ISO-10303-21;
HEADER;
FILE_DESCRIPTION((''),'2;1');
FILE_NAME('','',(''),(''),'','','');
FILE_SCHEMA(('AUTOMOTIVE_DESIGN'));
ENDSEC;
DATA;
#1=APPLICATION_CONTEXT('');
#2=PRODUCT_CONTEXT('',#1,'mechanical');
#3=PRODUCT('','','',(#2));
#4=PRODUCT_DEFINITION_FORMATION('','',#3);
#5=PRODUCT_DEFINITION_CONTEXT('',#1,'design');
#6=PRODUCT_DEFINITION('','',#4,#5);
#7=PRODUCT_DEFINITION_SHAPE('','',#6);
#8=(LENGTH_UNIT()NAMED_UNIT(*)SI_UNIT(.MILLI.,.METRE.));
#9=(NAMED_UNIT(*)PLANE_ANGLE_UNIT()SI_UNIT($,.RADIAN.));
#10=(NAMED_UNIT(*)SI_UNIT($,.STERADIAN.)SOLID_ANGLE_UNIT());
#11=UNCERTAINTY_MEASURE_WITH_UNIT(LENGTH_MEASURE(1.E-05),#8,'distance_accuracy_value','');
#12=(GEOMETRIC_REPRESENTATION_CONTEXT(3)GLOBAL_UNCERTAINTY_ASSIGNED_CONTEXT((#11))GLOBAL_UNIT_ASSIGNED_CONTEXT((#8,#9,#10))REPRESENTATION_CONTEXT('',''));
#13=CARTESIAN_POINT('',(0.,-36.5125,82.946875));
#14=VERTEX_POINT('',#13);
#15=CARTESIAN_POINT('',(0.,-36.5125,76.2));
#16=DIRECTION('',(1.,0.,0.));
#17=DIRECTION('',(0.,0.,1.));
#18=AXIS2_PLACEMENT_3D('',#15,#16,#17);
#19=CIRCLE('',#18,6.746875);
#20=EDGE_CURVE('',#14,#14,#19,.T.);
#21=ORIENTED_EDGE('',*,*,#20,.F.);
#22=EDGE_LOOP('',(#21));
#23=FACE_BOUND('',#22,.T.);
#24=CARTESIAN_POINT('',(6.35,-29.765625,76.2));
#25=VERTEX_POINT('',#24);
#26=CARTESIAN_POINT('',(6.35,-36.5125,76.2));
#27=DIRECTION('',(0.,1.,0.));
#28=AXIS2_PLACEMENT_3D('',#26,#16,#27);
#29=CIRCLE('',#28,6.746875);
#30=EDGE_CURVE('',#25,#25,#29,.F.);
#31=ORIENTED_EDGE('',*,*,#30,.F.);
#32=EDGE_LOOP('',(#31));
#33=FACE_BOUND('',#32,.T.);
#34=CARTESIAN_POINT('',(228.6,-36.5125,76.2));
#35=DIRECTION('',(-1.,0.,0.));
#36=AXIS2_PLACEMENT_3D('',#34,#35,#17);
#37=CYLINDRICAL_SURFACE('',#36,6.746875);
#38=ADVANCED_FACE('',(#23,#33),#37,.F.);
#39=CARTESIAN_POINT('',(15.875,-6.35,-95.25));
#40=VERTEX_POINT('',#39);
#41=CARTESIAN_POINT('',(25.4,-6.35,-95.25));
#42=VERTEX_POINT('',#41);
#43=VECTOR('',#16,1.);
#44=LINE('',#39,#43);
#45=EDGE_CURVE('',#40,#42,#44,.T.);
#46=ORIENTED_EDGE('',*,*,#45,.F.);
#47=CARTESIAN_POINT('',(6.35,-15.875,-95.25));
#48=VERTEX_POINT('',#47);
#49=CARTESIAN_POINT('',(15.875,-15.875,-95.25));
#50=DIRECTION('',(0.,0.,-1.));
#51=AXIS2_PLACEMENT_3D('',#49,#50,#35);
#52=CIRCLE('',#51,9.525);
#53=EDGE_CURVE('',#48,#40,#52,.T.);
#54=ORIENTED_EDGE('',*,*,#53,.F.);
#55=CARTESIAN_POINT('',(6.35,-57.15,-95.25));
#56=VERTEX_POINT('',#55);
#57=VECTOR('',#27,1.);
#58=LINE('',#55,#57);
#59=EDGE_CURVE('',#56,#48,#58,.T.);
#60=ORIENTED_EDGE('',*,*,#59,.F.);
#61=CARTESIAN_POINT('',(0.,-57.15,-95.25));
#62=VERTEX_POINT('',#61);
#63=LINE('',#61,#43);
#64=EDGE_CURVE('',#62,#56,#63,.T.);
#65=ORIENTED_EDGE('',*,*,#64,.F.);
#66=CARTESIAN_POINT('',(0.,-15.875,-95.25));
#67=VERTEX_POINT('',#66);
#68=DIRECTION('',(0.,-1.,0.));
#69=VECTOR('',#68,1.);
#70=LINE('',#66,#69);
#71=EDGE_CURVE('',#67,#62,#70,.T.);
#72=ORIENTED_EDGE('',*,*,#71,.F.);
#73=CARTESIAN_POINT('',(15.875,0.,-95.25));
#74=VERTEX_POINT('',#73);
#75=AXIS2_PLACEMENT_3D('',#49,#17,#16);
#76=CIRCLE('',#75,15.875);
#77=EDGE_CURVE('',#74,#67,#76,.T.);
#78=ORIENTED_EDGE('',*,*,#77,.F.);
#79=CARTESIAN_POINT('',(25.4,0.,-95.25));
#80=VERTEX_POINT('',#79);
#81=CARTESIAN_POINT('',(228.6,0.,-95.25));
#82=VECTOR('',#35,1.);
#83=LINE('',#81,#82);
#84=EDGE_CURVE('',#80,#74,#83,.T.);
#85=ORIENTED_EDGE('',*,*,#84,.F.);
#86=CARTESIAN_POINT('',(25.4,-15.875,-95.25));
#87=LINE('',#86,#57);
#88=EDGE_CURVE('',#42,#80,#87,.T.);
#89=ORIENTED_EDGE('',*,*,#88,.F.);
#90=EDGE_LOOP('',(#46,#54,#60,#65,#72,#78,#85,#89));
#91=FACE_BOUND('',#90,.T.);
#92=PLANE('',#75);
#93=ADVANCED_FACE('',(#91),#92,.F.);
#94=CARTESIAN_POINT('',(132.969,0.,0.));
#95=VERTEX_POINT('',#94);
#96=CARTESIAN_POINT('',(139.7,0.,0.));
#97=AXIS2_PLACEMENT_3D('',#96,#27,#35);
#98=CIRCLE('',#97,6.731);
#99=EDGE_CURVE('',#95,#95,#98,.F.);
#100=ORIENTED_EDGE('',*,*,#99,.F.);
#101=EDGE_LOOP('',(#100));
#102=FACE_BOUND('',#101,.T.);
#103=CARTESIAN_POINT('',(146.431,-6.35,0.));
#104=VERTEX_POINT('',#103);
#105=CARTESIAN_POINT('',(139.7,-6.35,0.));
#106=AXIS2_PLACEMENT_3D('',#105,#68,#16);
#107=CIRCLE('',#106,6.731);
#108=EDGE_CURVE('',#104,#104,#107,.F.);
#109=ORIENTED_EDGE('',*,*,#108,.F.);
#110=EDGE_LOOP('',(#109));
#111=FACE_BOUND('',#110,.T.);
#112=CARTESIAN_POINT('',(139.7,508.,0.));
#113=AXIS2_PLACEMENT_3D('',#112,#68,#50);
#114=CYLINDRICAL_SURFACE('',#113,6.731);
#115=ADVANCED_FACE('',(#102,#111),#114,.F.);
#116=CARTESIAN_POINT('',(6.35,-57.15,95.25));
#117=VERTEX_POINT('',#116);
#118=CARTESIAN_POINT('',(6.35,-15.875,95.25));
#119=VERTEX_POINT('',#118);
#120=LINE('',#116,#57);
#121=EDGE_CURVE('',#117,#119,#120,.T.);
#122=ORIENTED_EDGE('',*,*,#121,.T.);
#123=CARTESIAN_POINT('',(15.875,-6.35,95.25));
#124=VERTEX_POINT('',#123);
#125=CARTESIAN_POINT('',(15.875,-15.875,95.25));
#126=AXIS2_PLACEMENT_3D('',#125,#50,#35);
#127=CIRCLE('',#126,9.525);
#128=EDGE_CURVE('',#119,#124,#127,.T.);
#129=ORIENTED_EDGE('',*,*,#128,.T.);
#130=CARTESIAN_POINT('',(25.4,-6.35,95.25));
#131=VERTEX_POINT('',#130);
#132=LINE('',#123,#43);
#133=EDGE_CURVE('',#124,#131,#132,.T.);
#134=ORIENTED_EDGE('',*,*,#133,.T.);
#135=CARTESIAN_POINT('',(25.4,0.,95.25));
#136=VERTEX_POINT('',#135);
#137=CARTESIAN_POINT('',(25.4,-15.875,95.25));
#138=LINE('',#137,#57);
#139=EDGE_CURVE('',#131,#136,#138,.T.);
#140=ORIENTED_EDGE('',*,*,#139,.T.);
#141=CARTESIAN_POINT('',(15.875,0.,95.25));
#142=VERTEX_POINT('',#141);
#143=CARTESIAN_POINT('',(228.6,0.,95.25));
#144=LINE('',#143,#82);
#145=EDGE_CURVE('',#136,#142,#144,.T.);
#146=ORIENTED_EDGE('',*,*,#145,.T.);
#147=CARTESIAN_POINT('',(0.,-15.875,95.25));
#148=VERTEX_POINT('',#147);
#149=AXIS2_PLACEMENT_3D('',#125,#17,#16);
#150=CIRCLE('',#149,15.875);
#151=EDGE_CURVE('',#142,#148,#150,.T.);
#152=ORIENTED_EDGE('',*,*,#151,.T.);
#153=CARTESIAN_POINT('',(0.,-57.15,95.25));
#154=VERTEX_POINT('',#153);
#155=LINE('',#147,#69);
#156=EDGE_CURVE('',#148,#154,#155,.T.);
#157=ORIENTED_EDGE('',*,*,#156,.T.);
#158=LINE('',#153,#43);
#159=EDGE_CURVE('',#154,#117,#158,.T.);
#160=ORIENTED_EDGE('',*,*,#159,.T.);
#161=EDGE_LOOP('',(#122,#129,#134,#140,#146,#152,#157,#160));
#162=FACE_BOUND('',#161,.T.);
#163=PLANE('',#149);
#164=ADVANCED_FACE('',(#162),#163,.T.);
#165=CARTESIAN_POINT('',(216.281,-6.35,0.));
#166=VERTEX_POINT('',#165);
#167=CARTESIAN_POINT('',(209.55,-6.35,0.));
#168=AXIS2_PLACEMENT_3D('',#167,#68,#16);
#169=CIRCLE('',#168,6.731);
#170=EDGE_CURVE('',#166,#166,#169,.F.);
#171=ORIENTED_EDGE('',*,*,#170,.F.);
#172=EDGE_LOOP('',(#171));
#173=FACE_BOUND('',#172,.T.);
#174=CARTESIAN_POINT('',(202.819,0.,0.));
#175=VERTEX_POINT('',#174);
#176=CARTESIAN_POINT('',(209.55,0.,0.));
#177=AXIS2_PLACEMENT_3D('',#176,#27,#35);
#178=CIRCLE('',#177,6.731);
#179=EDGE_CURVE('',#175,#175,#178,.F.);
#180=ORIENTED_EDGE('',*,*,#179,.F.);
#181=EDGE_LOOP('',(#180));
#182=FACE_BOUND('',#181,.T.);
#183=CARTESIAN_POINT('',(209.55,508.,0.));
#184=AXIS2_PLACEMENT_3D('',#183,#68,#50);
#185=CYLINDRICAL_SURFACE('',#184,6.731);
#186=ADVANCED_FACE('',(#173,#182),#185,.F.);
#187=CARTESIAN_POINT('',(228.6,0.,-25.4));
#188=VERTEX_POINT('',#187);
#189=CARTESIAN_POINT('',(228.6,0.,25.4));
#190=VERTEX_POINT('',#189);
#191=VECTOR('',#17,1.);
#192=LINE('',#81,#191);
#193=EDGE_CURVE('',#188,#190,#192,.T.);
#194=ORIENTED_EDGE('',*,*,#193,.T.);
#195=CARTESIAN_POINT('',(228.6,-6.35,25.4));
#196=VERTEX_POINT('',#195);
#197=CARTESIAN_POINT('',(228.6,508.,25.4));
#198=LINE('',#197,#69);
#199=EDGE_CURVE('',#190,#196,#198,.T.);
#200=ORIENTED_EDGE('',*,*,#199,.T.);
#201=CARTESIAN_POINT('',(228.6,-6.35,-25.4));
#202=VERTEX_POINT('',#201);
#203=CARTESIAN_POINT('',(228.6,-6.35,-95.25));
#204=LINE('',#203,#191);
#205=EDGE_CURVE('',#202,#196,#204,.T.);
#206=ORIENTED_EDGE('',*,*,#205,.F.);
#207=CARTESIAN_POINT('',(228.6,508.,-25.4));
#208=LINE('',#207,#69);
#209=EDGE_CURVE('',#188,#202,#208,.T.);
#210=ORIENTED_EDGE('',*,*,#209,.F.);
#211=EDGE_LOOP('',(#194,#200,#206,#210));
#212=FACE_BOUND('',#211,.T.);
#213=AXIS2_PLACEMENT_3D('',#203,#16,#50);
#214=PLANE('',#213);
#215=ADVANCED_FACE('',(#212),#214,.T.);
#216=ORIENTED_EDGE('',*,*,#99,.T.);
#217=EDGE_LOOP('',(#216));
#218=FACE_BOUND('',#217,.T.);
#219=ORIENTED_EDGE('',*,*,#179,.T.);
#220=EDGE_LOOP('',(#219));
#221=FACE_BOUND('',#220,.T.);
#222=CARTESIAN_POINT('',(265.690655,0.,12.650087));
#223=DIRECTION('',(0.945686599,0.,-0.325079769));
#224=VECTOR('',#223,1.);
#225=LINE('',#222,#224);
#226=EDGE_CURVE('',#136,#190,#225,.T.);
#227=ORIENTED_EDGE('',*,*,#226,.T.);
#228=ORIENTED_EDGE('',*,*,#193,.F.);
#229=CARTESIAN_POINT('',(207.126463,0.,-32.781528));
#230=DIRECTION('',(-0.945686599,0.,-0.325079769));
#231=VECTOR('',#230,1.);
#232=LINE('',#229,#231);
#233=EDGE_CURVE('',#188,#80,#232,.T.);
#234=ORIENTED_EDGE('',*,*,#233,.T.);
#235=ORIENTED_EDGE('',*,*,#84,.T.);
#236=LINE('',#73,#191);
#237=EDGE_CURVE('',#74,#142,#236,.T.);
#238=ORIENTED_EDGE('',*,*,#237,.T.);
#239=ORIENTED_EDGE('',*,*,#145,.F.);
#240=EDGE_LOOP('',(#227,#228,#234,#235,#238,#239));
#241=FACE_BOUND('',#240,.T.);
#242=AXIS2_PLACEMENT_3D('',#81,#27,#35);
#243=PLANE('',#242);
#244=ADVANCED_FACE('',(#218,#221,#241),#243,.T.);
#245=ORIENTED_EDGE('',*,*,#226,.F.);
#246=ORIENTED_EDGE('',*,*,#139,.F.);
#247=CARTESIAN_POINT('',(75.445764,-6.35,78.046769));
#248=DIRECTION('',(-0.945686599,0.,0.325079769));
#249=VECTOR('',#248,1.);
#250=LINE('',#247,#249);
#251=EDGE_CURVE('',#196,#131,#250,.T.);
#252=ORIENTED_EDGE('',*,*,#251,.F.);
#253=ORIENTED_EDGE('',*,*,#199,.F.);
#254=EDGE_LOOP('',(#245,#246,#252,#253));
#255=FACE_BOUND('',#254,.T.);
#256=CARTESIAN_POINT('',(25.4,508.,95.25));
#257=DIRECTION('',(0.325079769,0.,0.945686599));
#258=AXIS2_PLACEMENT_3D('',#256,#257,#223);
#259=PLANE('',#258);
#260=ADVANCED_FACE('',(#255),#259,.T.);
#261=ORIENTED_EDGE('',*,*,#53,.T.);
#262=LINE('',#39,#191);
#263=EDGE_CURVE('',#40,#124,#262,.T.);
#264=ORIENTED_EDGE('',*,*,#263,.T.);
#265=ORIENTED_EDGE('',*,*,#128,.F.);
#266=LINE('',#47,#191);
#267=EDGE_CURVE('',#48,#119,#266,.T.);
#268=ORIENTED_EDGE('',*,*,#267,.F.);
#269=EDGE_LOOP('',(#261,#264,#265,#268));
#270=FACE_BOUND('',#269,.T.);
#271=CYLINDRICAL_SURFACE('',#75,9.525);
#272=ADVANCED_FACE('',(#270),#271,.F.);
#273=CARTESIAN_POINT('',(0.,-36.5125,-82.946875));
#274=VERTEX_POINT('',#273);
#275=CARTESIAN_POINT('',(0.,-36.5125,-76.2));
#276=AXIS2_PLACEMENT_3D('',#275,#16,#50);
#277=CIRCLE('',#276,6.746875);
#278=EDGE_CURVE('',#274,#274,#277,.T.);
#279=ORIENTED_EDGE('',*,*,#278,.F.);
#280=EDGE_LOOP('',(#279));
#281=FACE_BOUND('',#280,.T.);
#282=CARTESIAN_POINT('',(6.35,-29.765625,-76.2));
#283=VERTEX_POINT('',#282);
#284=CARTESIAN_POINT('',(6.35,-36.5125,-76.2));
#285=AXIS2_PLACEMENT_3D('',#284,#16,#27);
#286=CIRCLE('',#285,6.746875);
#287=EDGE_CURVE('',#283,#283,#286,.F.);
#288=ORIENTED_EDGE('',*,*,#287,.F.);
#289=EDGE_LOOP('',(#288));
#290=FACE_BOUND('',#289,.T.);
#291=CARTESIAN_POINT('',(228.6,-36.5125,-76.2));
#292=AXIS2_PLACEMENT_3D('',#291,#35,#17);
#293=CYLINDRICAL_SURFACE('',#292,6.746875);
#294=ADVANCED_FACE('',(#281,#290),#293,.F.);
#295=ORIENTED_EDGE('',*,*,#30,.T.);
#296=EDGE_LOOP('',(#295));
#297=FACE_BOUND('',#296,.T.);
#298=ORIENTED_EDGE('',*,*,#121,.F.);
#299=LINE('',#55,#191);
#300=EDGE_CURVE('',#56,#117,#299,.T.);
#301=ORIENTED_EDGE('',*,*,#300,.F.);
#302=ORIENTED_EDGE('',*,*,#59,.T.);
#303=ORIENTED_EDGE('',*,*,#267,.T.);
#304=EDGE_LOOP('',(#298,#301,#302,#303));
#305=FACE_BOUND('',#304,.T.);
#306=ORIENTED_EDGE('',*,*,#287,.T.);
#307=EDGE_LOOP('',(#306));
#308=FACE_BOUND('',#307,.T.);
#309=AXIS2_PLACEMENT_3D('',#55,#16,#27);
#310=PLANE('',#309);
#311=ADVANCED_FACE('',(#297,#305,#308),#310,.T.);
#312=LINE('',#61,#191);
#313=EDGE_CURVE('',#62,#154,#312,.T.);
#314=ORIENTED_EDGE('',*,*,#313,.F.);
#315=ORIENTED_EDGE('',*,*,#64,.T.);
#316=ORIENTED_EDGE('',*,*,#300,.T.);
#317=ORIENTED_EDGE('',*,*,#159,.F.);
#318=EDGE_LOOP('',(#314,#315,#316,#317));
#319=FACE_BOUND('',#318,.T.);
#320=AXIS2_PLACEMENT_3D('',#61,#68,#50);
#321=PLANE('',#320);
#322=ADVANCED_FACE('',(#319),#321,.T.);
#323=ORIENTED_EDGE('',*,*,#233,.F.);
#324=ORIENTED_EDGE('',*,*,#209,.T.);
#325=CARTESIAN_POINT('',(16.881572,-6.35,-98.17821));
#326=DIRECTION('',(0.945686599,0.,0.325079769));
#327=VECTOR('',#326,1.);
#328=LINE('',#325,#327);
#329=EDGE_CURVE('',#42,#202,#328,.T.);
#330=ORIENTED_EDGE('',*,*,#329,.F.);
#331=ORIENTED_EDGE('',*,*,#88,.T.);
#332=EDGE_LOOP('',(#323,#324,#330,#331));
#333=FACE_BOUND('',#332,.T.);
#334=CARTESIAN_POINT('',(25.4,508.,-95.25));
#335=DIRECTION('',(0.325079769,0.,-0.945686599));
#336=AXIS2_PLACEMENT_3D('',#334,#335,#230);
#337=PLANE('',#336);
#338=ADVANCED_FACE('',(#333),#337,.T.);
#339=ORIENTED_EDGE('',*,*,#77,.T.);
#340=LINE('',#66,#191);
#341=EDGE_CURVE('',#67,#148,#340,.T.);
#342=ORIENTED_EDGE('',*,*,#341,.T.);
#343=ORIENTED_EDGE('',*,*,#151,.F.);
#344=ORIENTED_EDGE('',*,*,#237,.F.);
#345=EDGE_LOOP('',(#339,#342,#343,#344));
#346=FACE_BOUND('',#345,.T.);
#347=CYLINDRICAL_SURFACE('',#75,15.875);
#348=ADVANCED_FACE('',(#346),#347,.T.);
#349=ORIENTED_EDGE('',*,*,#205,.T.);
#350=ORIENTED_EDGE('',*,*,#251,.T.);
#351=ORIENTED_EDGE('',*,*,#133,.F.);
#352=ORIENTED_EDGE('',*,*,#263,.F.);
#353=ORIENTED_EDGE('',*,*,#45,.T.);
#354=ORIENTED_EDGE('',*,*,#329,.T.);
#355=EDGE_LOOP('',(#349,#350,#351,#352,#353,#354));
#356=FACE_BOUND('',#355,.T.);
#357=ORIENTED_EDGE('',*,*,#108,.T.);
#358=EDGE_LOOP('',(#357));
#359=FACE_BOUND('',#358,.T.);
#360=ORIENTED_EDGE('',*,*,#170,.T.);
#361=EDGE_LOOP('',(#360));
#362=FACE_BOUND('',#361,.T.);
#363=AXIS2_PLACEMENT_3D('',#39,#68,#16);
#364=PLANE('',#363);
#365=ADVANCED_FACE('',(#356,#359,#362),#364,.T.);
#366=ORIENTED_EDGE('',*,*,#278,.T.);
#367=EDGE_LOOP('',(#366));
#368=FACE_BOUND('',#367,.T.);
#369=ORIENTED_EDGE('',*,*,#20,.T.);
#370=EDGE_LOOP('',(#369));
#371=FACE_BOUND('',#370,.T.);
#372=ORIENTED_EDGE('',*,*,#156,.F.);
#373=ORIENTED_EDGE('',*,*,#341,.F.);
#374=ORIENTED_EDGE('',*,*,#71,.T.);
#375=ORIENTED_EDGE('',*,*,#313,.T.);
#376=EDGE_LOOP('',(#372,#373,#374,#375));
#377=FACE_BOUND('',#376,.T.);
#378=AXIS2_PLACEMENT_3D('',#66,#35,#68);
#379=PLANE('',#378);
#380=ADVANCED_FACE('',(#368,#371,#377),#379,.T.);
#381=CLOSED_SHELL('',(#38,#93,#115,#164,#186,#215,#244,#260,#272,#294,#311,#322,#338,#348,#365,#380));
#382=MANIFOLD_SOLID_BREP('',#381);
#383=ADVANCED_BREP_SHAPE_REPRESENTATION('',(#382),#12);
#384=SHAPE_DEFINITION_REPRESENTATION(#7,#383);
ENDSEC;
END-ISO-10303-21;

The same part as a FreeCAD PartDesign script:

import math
import FreeCAD as App
import Part
import Sketcher

V = App.Vector
Q = App.Units.Quantity

doc = App.newDocument("Part")
body = doc.addObject("PartDesign::Body", "Body")

sketch1 = body.newObject("Sketcher::SketchObject", "Sketch")
sketch1.AttachmentSupport = (doc.getObject("XY_Plane"), [""])
sketch1.MapMode = "FlatFace"
sketch1.addGeometry([
    Part.LineSegment(V(228.6, 0, 0), V(15.875, 0, 0)),
    Part.ArcOfCircle(Part.Circle(V(15.875, -15.875, 0), V(0, 0, 1), 15.875), math.radians(90), math.radians(180)),
    Part.LineSegment(V(0, -15.875, 0), V(0, -57.15, 0)),
    Part.LineSegment(V(0, -57.15, 0), V(6.35, -57.15, 0)),
    Part.LineSegment(V(6.35, -57.15, 0), V(6.35, -15.875, 0)),
    Part.ArcOfCircle(Part.Circle(V(15.875, -15.875, 0), V(0, 0, 1), 9.525), math.radians(90), math.radians(180)),
    Part.LineSegment(V(15.875, -6.35, 0), V(228.6, -6.35, 0)),
    Part.LineSegment(V(228.6, -6.35, 0), V(228.6, 0, 0)),
], False)
sketch1.addConstraint([
    Sketcher.Constraint("Tangent", 0, 2, 1, 1),
    Sketcher.Constraint("Tangent", 1, 2, 2, 1),
    Sketcher.Constraint("Coincident", 2, 2, 3, 1),
    Sketcher.Constraint("Coincident", 3, 2, 4, 1),
    Sketcher.Constraint("Tangent", 4, 2, 5, 2),
    Sketcher.Constraint("Tangent", 5, 1, 6, 1),
    Sketcher.Constraint("Coincident", 6, 2, 7, 1),
    Sketcher.Constraint("Coincident", 7, 2, 0, 1),
    Sketcher.Constraint("Horizontal", 0),
    Sketcher.Constraint("Vertical", 2),
    Sketcher.Constraint("Horizontal", 3),
    Sketcher.Constraint("Vertical", 4),
    Sketcher.Constraint("Horizontal", 6),
    Sketcher.Constraint("Vertical", 7),
    Sketcher.Constraint("Coincident", 5, 3, 1, 3),
    Sketcher.Constraint("PointOnObject", 0, 2, -1),
    Sketcher.Constraint("PointOnObject", 1, 2, -2),
    Sketcher.Constraint("DistanceX", -1, 1, 6, 2, Q("9 in")),
    Sketcher.Constraint("Radius", 1, Q("0.625 in")),
    Sketcher.Constraint("Radius", 5, Q("0.375 in")),
    Sketcher.Constraint("DistanceY", 2, 2, 2, 1, Q("1.625 in")),
])
pad1 = body.newObject("PartDesign::Pad", "Pad")
pad1.Profile = sketch1
pad1.Length = Q("7.5 in")
pad1.Midplane = True

sketch2 = body.newObject("Sketcher::SketchObject", "Sketch001")
sketch2.AttachmentSupport = (doc.getObject("XZ_Plane"), [""])
sketch2.MapMode = "FlatFace"
sketch2.addGeometry([
    Part.Circle(V(209.55, 0, 0), V(0, 0, 1), 6.731),
    Part.Circle(V(139.7, 0, 0), V(0, 0, 1), 6.731),
    Part.LineSegment(V(25.4, -95.25, 0), V(228.6, -25.4, 0)),
    Part.LineSegment(V(228.6, -25.4, 0), V(228.6, -95.25, 0)),
    Part.LineSegment(V(228.6, -95.25, 0), V(25.4, -95.25, 0)),
    Part.LineSegment(V(228.6, 25.4, 0), V(25.4, 95.25, 0)),
    Part.LineSegment(V(25.4, 95.25, 0), V(228.6, 95.25, 0)),
    Part.LineSegment(V(228.6, 95.25, 0), V(228.6, 25.4, 0)),
], False)
sketch2.addConstraint([
    Sketcher.Constraint("Coincident", 2, 2, 3, 1),
    Sketcher.Constraint("Coincident", 3, 2, 4, 1),
    Sketcher.Constraint("Coincident", 4, 2, 2, 1),
    Sketcher.Constraint("Coincident", 5, 2, 6, 1),
    Sketcher.Constraint("Coincident", 6, 2, 7, 1),
    Sketcher.Constraint("Coincident", 7, 2, 5, 1),
    Sketcher.Constraint("Vertical", 3),
    Sketcher.Constraint("Horizontal", 4),
    Sketcher.Constraint("Horizontal", 6),
    Sketcher.Constraint("Vertical", 7),
    Sketcher.Constraint("Equal", 0, 1),
    Sketcher.Constraint("Symmetric", 4, 2, 5, 2, -1),
    Sketcher.Constraint("Symmetric", 2, 2, 7, 2, -1),
    Sketcher.Constraint("PointOnObject", 0, 3, -1),
    Sketcher.Constraint("PointOnObject", 1, 3, -1),
    Sketcher.Constraint("Diameter", 0, Q("0.53 in")),
    Sketcher.Constraint("DistanceX", 4, 2, 4, 1, Q("8 in")),
    Sketcher.Constraint("DistanceX", -1, 1, 2, 2, Q("9 in")),
    Sketcher.Constraint("DistanceY", 2, 2, -1, 1, Q("1 in")),
    Sketcher.Constraint("DistanceY", 3, 2, 3, 1, Q("2.75 in")),
    Sketcher.Constraint("DistanceX", -1, 1, 1, 3, Q("5.5 in")),
    Sketcher.Constraint("DistanceX", -1, 1, 0, 3, Q("8.25 in")),
])
pocket1 = body.newObject("PartDesign::Pocket", "Pocket")
pocket1.Profile = sketch2
pocket1.Type = "ThroughAll"
pocket1.Midplane = True

sketch3 = body.newObject("Sketcher::SketchObject", "Sketch002")
sketch3.AttachmentSupport = (doc.getObject("YZ_Plane"), [""])
sketch3.MapMode = "FlatFace"
sketch3.addGeometry([
    Part.Circle(V(-36.5125, 76.2, 0), V(0, 0, 1), 6.746875),
    Part.Circle(V(-36.5125, -76.2, 0), V(0, 0, 1), 6.746875),
], False)
sketch3.addConstraint([
    Sketcher.Constraint("Equal", 0, 1),
    Sketcher.Constraint("Symmetric", 0, 3, 1, 3, -1),
    Sketcher.Constraint("Diameter", 0, Q("0.53125 in")),
    Sketcher.Constraint("DistanceY", -1, 1, 0, 3, Q("3 in")),
    Sketcher.Constraint("DistanceX", 0, 3, -1, 1, Q("1.4375 in")),
])
pocket2 = body.newObject("PartDesign::Pocket", "Pocket001")
pocket2.Profile = sketch3
pocket2.Type = "ThroughAll"
pocket2.Reversed = True

doc.recompute()
